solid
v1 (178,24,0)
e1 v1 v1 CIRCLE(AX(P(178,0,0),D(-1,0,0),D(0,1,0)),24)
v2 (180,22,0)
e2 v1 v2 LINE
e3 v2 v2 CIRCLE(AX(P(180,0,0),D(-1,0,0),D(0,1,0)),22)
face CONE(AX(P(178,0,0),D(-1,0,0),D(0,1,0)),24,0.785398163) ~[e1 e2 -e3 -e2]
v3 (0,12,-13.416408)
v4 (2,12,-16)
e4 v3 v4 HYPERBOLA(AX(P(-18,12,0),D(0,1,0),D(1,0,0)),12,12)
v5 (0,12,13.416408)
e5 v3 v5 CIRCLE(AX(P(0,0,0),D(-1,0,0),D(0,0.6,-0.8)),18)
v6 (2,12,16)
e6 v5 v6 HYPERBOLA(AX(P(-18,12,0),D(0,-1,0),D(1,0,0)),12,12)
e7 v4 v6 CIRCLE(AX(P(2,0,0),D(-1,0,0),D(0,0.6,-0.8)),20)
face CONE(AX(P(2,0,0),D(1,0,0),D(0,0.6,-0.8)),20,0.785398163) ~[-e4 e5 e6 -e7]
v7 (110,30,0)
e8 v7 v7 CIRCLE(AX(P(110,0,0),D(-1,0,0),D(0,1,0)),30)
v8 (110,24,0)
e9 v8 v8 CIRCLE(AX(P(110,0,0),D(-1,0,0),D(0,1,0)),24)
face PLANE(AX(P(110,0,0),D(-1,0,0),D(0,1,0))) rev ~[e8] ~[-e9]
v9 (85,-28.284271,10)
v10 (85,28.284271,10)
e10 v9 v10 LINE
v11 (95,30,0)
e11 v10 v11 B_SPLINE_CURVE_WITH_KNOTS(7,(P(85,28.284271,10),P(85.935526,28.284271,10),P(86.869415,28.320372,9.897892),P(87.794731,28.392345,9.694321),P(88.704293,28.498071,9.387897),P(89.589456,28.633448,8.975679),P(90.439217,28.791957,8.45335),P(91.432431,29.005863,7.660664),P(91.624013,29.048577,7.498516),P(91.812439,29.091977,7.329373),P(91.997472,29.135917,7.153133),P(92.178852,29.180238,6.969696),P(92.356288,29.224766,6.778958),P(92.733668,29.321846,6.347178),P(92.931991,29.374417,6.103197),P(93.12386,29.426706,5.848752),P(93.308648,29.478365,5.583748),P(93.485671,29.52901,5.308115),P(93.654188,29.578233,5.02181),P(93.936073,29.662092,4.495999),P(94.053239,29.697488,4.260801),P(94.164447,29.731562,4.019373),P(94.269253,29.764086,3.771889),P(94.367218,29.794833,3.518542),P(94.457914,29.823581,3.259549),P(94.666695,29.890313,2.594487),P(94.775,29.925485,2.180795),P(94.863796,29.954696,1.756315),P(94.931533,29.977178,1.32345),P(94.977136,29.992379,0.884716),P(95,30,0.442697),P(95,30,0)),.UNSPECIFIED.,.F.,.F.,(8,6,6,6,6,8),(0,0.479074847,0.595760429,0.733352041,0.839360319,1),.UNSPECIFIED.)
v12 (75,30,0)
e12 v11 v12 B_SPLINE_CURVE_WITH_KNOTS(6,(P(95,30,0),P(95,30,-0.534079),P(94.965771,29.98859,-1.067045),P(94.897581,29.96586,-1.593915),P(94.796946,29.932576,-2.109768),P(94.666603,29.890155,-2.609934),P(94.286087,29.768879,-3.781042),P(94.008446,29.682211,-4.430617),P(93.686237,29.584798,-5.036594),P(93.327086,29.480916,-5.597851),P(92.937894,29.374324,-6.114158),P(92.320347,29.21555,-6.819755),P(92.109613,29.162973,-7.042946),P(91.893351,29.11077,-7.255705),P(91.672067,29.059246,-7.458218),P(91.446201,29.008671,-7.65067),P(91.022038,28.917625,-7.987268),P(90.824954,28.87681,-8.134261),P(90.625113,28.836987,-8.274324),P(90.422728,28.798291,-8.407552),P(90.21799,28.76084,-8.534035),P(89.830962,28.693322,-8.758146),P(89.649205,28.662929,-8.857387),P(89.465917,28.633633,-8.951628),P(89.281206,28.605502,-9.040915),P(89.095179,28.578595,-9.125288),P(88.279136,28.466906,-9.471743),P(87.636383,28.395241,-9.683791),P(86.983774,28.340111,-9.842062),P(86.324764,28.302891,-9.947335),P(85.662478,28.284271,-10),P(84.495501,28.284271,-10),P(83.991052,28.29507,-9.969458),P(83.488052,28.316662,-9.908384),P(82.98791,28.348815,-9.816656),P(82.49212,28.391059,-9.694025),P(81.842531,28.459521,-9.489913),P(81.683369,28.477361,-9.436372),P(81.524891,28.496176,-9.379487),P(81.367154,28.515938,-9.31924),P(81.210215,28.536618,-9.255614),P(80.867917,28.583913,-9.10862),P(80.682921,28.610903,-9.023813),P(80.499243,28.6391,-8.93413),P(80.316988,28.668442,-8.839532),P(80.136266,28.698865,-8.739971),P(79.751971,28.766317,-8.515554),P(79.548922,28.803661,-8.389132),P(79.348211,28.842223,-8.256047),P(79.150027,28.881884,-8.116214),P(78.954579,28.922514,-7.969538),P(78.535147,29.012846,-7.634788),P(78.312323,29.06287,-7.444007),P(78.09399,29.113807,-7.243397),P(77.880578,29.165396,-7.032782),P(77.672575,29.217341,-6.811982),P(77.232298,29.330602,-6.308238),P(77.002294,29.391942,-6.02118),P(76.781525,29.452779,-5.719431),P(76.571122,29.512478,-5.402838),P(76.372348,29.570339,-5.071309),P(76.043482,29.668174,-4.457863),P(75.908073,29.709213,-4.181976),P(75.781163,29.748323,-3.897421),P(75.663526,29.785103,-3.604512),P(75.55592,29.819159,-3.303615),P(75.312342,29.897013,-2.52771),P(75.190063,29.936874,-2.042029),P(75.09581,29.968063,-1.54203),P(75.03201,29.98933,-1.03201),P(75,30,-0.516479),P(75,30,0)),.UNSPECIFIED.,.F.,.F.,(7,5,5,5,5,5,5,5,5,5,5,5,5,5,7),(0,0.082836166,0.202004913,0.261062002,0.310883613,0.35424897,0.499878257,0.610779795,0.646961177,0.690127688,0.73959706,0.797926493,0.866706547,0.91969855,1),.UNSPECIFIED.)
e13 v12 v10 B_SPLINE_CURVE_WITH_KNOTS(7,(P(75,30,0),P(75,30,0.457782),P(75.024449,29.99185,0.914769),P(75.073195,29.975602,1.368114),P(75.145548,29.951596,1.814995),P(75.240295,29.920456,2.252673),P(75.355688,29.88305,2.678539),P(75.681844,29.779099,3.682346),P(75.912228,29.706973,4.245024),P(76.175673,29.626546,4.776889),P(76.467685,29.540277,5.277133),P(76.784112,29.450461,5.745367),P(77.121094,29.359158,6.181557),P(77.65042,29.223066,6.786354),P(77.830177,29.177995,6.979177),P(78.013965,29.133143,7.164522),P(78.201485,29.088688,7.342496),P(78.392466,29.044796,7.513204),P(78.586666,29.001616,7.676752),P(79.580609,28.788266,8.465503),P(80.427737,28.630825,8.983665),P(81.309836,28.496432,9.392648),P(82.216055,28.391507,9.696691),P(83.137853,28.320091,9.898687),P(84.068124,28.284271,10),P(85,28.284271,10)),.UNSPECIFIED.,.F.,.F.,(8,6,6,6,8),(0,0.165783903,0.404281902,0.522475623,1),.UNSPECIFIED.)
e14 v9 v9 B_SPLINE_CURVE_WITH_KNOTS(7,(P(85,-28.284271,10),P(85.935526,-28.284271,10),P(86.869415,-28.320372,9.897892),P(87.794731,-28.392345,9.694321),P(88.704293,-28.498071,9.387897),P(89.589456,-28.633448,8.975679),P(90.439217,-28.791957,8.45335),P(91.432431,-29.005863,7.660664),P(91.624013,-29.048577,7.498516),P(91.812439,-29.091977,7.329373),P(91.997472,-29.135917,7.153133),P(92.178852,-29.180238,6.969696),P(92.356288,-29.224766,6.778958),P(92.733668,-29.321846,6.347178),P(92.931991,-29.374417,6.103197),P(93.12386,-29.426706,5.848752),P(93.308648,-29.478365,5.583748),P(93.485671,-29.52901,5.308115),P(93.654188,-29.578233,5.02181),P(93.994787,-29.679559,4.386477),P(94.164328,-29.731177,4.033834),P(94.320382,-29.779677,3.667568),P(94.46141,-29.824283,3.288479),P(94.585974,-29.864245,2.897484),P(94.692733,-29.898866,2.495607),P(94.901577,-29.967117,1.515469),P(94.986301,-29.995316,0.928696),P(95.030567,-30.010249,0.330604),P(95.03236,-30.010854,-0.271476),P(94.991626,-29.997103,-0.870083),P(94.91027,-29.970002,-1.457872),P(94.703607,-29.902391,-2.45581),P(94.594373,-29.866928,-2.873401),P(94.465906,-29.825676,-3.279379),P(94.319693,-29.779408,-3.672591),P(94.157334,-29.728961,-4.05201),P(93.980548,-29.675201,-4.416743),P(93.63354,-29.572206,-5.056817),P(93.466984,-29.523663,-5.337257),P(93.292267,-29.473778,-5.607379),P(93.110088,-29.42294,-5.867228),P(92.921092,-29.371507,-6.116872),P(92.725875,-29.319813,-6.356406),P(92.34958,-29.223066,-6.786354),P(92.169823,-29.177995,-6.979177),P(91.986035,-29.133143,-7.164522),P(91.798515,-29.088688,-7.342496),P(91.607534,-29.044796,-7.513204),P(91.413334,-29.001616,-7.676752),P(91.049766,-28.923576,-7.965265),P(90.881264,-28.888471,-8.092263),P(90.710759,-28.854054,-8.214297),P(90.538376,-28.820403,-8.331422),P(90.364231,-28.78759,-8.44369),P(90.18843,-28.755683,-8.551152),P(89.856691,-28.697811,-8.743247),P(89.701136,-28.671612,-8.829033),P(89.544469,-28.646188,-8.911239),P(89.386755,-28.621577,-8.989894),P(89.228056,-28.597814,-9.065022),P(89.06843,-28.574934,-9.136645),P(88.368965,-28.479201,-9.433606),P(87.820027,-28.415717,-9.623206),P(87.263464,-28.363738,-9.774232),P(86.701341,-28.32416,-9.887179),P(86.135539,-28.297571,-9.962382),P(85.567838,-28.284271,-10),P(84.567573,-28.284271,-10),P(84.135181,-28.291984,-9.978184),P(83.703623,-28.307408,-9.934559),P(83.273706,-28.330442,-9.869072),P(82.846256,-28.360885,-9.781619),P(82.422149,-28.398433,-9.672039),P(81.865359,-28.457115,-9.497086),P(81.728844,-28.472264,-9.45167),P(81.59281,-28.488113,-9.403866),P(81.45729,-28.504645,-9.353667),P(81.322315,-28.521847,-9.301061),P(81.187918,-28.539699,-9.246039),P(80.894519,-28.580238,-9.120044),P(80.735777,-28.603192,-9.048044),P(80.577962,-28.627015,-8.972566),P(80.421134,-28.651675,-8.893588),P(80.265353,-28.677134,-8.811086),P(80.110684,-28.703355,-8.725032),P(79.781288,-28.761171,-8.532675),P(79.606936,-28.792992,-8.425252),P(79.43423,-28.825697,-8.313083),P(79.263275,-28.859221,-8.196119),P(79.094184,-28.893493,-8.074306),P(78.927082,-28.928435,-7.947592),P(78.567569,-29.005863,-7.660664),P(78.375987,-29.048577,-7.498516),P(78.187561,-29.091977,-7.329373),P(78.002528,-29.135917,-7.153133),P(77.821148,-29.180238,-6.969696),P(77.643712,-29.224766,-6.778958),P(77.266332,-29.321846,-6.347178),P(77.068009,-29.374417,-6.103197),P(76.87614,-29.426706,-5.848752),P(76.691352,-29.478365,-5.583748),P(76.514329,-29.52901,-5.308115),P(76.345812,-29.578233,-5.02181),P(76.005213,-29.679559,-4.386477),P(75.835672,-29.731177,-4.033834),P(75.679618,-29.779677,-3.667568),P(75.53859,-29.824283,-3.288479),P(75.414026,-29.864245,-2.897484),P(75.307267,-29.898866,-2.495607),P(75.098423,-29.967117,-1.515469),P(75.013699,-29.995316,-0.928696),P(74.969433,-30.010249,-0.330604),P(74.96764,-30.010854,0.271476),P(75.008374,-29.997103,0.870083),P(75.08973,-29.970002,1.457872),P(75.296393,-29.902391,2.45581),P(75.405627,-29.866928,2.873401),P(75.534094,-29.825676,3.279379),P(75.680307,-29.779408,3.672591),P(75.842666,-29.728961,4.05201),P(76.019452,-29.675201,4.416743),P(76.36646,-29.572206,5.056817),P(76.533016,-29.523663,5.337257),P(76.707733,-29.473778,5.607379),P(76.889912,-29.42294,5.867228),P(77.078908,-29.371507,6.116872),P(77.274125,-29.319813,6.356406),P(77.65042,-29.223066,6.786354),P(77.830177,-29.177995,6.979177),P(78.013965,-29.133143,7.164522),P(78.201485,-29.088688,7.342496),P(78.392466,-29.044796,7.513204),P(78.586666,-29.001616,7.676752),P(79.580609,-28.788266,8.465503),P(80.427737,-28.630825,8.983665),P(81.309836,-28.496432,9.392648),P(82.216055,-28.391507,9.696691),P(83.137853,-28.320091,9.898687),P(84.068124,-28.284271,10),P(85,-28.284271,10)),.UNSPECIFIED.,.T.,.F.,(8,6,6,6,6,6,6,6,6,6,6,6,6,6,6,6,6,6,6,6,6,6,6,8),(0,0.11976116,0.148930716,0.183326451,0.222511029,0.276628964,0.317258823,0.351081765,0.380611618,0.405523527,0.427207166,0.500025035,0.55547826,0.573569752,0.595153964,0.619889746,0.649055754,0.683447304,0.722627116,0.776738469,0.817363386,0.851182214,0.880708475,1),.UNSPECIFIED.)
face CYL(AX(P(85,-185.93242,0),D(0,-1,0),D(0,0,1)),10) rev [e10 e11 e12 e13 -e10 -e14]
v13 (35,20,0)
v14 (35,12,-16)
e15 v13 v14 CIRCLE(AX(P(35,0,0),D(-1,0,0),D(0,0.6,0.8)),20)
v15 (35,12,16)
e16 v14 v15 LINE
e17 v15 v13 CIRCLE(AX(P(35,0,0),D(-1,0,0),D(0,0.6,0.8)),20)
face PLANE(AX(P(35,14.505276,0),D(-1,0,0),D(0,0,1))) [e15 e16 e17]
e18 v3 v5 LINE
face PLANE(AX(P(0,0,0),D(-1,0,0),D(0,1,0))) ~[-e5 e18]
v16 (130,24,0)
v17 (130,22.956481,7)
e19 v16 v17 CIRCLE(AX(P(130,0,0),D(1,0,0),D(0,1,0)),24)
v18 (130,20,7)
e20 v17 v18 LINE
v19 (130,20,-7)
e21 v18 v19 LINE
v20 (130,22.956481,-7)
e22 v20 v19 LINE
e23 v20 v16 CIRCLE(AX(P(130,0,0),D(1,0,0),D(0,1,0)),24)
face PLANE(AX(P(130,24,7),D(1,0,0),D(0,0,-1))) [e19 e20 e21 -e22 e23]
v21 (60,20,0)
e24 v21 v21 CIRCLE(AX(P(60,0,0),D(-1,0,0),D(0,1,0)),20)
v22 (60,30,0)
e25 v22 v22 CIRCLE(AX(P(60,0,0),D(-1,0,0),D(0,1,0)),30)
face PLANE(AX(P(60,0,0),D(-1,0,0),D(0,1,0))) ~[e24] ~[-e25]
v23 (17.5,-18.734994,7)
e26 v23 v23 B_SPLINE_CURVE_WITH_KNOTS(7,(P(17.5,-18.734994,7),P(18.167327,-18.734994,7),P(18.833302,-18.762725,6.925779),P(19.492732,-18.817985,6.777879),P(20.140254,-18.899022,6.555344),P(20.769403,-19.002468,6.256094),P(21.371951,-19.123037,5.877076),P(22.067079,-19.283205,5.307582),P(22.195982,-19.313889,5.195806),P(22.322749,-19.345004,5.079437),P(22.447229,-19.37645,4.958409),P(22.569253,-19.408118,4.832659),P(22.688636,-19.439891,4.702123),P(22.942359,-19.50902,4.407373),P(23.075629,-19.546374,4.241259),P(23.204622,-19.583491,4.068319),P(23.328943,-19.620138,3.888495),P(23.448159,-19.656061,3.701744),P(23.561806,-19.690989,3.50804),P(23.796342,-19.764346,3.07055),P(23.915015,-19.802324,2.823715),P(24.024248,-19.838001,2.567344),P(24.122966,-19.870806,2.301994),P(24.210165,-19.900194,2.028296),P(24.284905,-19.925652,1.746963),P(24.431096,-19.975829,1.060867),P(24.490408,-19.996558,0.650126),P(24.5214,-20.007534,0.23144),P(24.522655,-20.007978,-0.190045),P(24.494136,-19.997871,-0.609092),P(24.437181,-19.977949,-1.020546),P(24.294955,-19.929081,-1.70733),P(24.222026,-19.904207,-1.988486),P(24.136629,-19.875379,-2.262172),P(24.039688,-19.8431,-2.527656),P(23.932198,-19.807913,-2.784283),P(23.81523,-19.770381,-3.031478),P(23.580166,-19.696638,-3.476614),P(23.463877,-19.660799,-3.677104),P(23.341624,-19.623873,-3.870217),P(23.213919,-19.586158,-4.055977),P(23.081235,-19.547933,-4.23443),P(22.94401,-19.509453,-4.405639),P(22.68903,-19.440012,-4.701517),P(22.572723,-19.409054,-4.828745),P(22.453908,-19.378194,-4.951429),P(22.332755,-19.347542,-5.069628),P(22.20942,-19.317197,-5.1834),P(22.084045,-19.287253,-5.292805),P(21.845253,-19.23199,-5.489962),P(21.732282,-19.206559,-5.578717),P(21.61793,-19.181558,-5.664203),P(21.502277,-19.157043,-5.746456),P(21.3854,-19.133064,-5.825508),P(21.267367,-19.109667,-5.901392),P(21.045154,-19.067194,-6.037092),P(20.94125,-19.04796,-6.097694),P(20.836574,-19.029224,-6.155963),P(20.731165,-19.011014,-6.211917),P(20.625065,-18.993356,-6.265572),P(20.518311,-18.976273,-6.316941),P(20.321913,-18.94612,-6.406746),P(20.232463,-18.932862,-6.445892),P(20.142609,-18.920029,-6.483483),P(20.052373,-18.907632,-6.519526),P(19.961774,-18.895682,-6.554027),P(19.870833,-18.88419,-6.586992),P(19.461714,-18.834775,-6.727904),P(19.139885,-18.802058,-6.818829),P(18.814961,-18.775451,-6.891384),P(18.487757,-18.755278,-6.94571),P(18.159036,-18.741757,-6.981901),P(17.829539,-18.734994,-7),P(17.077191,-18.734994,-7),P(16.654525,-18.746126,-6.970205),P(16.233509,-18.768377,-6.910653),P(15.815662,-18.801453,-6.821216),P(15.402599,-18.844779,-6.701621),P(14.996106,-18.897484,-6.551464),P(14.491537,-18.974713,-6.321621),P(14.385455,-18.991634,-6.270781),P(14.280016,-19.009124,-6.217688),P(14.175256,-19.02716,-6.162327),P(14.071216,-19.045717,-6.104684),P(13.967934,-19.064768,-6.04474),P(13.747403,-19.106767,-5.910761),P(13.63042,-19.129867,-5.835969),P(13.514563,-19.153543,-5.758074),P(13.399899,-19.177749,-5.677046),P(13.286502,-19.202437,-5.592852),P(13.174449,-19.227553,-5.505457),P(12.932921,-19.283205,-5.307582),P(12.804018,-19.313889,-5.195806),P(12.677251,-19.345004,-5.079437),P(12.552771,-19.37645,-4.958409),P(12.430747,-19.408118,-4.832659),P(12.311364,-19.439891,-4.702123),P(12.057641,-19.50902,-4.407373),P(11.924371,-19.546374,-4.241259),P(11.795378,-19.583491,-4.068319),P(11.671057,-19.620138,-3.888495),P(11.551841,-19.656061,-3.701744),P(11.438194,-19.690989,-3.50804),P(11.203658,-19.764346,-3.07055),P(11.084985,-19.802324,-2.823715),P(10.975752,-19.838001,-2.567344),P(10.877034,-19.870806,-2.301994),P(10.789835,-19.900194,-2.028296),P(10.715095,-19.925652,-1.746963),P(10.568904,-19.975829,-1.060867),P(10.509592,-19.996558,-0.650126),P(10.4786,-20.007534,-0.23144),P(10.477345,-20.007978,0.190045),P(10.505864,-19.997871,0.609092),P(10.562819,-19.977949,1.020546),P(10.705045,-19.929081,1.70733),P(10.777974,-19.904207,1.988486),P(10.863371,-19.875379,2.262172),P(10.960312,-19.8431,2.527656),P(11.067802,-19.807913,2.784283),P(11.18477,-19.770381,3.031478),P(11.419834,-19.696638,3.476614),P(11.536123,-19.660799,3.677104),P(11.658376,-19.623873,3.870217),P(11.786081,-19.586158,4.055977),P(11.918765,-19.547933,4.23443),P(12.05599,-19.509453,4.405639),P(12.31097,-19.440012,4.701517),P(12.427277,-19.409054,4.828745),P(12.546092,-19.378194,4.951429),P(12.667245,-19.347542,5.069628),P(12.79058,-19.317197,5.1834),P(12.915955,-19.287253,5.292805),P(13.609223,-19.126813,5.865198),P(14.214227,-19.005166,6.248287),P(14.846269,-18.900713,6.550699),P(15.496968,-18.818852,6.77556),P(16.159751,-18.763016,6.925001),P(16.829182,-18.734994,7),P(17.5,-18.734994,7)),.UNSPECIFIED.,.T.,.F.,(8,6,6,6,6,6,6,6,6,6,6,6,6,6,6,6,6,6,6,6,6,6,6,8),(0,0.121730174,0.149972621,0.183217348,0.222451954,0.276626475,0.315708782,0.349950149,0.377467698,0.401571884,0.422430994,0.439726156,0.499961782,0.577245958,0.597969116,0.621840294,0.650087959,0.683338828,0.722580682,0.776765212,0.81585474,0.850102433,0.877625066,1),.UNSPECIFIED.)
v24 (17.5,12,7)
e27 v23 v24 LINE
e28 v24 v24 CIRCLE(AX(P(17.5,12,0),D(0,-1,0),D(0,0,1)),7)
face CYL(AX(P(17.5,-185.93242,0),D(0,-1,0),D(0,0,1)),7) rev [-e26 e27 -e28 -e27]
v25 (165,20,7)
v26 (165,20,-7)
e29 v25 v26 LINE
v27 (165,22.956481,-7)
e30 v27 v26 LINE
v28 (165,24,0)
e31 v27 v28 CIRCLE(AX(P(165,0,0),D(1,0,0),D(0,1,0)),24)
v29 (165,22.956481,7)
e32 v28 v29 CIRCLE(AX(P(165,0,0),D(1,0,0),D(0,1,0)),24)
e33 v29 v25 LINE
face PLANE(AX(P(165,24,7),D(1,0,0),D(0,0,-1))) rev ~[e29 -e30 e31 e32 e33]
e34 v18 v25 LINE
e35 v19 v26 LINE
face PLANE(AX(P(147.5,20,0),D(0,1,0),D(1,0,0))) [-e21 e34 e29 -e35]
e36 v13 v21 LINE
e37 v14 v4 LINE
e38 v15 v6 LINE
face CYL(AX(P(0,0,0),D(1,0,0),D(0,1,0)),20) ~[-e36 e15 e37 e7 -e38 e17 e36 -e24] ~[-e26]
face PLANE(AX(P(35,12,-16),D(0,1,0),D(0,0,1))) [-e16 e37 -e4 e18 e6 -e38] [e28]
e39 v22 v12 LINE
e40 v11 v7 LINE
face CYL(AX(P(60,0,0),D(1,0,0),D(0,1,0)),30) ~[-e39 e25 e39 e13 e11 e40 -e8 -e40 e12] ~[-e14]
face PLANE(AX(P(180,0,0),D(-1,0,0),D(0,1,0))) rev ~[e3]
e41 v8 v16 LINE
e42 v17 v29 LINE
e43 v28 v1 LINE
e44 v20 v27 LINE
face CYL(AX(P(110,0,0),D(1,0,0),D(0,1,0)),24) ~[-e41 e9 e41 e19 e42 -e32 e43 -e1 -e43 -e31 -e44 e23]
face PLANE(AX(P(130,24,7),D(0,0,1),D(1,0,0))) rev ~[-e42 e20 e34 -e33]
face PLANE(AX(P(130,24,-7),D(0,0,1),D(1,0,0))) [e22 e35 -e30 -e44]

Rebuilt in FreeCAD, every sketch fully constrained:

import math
import FreeCAD as App
import Part
import Sketcher

V = App.Vector


def edges_at(feature, points):
    """Names of the edges that pass closest to the given points."""
    edges = feature.Shape.Edges
    near = lambda p: min(range(len(edges)), key=lambda i: edges[i].distToShape(Part.Vertex(*p))[0])
    return sorted({f"Edge{near(p) + 1}" for p in points})


def add_polygon(sketch, points):
    """Adds a closed chain of lines whose ends are joined by coincident constraints."""
    first, n = sketch.GeometryCount, len(points)
    for a, b in zip(points, points[1:] + points[:1]):
        sketch.addGeometry(Part.LineSegment(App.Vector(*a, 0), App.Vector(*b, 0)), False)
    for i in range(n):
        sketch.addConstraint(Sketcher.Constraint("Coincident", first + i, 2, first + (i + 1) % n, 1))

doc = App.newDocument("Part")
body = doc.addObject("PartDesign::Body", "Body")

# Sketch on XY plane
sketch1 = body.newObject("Sketcher::SketchObject", "Sketch")
sketch1.AttachmentSupport = (doc.getObject("XY_Plane"), [""])
sketch1.MapMode = "FlatFace"
add_polygon(sketch1, [(0, 20), (0, 0), (180, 0), (180, 24), (110, 24), (110, 30), (60, 30), (60, 20)])  # lines 0-7
sketch1.addConstraint(Sketcher.Constraint("Vertical", 0))
sketch1.addConstraint(Sketcher.Constraint("Horizontal", 1))
sketch1.addConstraint(Sketcher.Constraint("Vertical", 2))
sketch1.addConstraint(Sketcher.Constraint("Horizontal", 3))
sketch1.addConstraint(Sketcher.Constraint("Vertical", 4))
sketch1.addConstraint(Sketcher.Constraint("Horizontal", 5))
sketch1.addConstraint(Sketcher.Constraint("Vertical", 6))
sketch1.addConstraint(Sketcher.Constraint("Horizontal", 7))
sketch1.addConstraint(Sketcher.Constraint("Coincident", 0, 2, -1, 1))
sketch1.addConstraint(Sketcher.Constraint("DistanceX", 1, 1, 1, 2, 180.0))
sketch1.addConstraint(Sketcher.Constraint("DistanceX", 3, 2, 3, 1, 70.0))
sketch1.addConstraint(Sketcher.Constraint("DistanceX", 5, 2, 5, 1, 50.0))
sketch1.addConstraint(Sketcher.Constraint("DistanceY", 0, 2, 0, 1, 20.0))
sketch1.addConstraint(Sketcher.Constraint("DistanceY", 2, 1, 2, 2, 24.0))
sketch1.addConstraint(Sketcher.Constraint("DistanceY", 4, 1, 4, 2, 6.0))
revolution = body.newObject("PartDesign::Revolution", "Revolution")
revolution.Profile = sketch1
revolution.ReferenceAxis = (sketch1, ["H_Axis"])
revolution.Angle = 360

# Sketch on YZ plane
sketch2 = body.newObject("Sketcher::SketchObject", "Sketch001")
sketch2.AttachmentSupport = (doc.getObject("YZ_Plane"), [""])
sketch2.MapMode = "FlatFace"
sketch2.AttachmentOffset = App.Placement(V(0, 0, 35), App.Rotation())
sketch2.addGeometry(Part.LineSegment(V(12, -16, 0), V(12, 16, 0)), False)
sketch2.addGeometry(Part.ArcOfCircle(Part.Circle(V(0, 0, 0), V(0, 0, 1), 20), math.radians(-53), math.radians(53)), False)
sketch2.addConstraint(Sketcher.Constraint("Coincident", 0, 1, 1, 1))
sketch2.addConstraint(Sketcher.Constraint("Coincident", 1, 2, 0, 2))
sketch2.addConstraint(Sketcher.Constraint("Vertical", 0))
sketch2.addConstraint(Sketcher.Constraint("Coincident", 1, 3, -1, 1))
sketch2.addConstraint(Sketcher.Constraint("Radius", 1, 20.0))
sketch2.addConstraint(Sketcher.Constraint("DistanceY", 0, 1, 0, 2, 32.0))
pocket1 = body.newObject("PartDesign::Pocket", "Pocket")
pocket1.Profile = sketch2
pocket1.Length = 35

# Sketch on XZ plane
sketch3 = body.newObject("Sketcher::SketchObject", "Sketch002")
sketch3.AttachmentSupport = (doc.getObject("XZ_Plane"), [""])
sketch3.MapMode = "FlatFace"
sketch3.addGeometry(Part.Circle(V(18, 0, 0), V(0, 0, 1), 7), False)
sketch3.addGeometry(Part.Circle(V(85, 0, 0), V(0, 0, 1), 10), False)
sketch3.addConstraint(Sketcher.Constraint("PointOnObject", 0, 3, -1))
sketch3.addConstraint(Sketcher.Constraint("PointOnObject", 1, 3, -1))
sketch3.addConstraint(Sketcher.Constraint("Diameter", 0, 14.0))
sketch3.addConstraint(Sketcher.Constraint("Diameter", 1, 20.0))
sketch3.addConstraint(Sketcher.Constraint("DistanceX", -1, 1, 1, 3, 85.0))
sketch3.addConstraint(Sketcher.Constraint("DistanceX", -1, 1, 0, 3, 17.5))
pocket2 = body.newObject("PartDesign::Pocket", "Pocket001")
pocket2.Profile = sketch3
pocket2.Type = "ThroughAll"
pocket2.Midplane = True

# Sketch on XZ plane
sketch4 = body.newObject("Sketcher::SketchObject", "Sketch003")
sketch4.AttachmentSupport = (doc.getObject("XZ_Plane"), [""])
sketch4.MapMode = "FlatFace"
sketch4.AttachmentOffset = App.Placement(V(0, 0, -24), App.Rotation())
add_polygon(sketch4, [(130, -7), (130, 7), (165, 7), (165, -7)])  # lines 0-3
sketch4.addConstraint(Sketcher.Constraint("Vertical", 0))
sketch4.addConstraint(Sketcher.Constraint("Horizontal", 1))
sketch4.addConstraint(Sketcher.Constraint("Vertical", 2))
sketch4.addConstraint(Sketcher.Constraint("Horizontal", 3))
sketch4.addConstraint(Sketcher.Constraint("DistanceX", 1, 1, 1, 2, 35.0))
sketch4.addConstraint(Sketcher.Constraint("DistanceY", 0, 1, 0, 2, 14.0))
sketch4.addConstraint(Sketcher.Constraint("DistanceX", -1, 1, 0, 2, 130.0))
sketch4.addConstraint(Sketcher.Constraint("DistanceY", -1, 1, 0, 2, 7.0))
pocket3 = body.newObject("PartDesign::Pocket", "Pocket002")
pocket3.Profile = sketch4
pocket3.Length = 4
pocket3.Reversed = True
doc.recompute()

chamfer = body.newObject("PartDesign::Chamfer", "Chamfer")
chamfer.Base = (pocket3, edges_at(pocket3, [(180, -24, 0), (0, -20, 0)]))
chamfer.Size = 2

doc.recompute()
